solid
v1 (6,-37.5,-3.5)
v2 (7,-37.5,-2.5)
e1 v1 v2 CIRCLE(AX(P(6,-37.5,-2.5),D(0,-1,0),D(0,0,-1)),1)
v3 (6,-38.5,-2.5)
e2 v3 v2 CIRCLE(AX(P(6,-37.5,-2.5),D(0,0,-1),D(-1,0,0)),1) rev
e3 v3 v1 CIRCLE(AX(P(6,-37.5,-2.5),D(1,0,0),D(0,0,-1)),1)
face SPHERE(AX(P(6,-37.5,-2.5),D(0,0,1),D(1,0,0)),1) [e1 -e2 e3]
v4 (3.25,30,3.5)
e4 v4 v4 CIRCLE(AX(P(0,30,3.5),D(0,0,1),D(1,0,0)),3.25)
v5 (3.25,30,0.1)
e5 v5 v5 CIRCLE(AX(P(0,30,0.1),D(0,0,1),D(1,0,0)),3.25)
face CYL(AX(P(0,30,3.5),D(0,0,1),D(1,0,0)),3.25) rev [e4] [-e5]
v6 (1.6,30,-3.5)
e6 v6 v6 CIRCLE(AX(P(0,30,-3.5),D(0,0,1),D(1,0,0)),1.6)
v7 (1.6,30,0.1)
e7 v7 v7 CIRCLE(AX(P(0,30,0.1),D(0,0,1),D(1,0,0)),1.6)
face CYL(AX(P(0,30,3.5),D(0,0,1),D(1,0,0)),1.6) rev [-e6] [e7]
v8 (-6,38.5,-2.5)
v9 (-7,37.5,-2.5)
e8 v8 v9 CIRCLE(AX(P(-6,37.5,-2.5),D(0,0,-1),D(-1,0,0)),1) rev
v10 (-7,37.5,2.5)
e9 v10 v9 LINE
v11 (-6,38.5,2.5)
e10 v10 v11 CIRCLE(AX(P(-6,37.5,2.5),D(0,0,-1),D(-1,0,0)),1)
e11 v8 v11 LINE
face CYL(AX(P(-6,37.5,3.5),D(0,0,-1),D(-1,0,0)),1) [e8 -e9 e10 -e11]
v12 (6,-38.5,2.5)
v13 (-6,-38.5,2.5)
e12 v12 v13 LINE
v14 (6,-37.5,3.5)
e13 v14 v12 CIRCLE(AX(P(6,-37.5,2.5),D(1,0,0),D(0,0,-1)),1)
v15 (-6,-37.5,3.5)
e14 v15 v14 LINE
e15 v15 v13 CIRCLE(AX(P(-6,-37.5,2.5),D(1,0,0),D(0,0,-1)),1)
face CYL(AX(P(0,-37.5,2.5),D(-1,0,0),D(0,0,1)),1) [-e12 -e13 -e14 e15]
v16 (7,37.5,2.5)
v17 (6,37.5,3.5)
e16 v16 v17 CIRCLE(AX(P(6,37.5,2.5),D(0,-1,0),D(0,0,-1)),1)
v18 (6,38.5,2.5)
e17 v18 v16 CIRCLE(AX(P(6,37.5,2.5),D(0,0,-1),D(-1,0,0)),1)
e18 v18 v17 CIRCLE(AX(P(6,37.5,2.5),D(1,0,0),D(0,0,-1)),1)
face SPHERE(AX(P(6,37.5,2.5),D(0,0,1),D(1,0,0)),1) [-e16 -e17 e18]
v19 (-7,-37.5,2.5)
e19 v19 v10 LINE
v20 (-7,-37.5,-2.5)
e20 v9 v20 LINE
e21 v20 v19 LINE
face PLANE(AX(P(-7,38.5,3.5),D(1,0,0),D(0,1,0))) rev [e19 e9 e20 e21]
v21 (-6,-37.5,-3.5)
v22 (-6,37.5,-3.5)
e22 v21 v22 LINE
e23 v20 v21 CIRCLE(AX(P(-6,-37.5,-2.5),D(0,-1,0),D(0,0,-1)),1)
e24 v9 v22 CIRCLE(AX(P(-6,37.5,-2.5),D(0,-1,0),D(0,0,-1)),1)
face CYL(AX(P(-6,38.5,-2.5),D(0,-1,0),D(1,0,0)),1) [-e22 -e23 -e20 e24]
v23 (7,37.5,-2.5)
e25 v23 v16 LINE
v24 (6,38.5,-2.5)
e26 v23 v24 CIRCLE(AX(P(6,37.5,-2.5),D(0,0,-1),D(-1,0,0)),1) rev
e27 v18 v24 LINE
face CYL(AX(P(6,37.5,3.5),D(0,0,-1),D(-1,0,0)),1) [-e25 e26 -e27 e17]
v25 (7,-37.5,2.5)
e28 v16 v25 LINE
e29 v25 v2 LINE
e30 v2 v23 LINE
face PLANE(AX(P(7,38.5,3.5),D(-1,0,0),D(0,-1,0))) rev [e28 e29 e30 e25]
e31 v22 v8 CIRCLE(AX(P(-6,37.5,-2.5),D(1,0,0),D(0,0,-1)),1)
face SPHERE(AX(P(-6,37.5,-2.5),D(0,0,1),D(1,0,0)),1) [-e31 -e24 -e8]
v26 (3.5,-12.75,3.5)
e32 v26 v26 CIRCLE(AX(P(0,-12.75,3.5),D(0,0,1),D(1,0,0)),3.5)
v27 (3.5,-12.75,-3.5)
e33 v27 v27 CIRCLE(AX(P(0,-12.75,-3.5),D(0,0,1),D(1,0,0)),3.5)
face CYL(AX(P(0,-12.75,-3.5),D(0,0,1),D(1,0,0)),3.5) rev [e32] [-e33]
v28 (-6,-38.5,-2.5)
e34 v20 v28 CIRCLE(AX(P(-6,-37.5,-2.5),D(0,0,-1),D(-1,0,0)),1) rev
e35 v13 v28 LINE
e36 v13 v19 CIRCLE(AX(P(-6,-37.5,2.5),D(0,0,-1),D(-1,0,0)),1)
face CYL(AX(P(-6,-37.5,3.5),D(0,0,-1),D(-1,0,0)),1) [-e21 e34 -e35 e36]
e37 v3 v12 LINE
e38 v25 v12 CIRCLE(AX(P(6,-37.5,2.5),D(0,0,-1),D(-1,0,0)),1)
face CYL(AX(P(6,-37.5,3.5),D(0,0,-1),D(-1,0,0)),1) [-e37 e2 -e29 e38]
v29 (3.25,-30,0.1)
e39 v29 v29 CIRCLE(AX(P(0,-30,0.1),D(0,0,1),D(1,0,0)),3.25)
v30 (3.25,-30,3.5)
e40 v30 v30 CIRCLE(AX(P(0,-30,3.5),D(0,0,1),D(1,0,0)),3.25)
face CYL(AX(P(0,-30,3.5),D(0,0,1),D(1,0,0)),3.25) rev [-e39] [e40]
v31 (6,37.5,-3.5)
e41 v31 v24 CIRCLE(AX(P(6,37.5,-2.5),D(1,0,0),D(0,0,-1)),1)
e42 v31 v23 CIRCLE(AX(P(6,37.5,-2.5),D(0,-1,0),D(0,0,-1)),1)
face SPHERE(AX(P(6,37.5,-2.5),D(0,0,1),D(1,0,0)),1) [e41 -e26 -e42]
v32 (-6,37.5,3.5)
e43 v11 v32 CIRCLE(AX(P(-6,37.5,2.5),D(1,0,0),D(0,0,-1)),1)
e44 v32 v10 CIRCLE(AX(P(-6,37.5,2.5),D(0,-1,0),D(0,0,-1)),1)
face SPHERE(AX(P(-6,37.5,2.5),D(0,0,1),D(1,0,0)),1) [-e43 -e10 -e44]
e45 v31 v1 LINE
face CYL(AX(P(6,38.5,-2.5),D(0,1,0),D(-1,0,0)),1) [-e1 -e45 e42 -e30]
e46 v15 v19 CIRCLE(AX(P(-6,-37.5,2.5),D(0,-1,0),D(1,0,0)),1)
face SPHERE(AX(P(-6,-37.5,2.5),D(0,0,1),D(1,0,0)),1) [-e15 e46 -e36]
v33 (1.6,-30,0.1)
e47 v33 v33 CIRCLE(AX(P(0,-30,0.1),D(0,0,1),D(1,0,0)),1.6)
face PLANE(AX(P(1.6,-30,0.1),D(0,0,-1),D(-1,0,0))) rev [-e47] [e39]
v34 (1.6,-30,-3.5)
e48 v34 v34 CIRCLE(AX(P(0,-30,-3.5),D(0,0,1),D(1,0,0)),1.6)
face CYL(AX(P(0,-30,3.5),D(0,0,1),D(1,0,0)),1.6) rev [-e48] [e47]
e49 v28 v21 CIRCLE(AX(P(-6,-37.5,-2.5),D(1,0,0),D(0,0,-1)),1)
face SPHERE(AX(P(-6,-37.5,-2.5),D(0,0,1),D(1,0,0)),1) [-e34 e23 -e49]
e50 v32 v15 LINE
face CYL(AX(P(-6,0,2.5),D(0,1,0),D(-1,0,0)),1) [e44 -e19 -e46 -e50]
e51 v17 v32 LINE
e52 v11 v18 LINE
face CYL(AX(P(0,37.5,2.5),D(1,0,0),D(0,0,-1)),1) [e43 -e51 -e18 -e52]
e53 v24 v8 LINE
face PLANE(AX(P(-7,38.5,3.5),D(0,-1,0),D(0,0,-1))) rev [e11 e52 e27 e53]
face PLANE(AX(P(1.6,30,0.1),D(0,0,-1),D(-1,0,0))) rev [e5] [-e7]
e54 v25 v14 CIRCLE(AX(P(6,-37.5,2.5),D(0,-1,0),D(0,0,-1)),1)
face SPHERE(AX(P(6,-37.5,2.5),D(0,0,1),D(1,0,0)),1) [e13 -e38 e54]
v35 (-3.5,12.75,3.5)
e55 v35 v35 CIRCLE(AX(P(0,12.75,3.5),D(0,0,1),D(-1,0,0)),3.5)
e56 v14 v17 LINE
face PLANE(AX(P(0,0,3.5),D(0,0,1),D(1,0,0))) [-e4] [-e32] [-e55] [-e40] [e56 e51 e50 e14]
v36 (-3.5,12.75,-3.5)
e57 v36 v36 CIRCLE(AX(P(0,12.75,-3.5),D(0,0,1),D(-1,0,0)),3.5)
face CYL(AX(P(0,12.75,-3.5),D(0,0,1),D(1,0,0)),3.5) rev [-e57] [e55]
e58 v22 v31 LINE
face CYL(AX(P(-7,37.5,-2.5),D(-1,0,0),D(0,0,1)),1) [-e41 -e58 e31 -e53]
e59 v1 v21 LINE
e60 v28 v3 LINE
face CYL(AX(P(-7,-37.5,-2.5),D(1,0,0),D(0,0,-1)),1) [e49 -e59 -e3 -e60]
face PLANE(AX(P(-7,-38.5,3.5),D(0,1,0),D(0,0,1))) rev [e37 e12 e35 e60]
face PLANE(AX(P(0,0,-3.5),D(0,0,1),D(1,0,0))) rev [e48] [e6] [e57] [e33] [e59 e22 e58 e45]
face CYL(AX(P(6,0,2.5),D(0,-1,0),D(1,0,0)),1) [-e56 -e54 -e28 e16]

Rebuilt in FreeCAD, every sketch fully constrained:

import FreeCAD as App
import Part
import Sketcher
from FreeCAD import Vector


def edges_at(feature, points):
    """Names of the edges that pass closest to the given points."""
    edges = feature.Shape.Edges
    near = lambda p: min(range(len(edges)), key=lambda i: edges[i].distToShape(Part.Vertex(*p))[0])
    return sorted({f"Edge{near(p) + 1}" for p in points})

doc = App.newDocument("Part")
body = doc.addObject("PartDesign::Body", "Body")

# Sketch on XY plane
sketch1 = body.newObject("Sketcher::SketchObject", "Sketch")
sketch1.AttachmentSupport = (doc.getObject("XY_Plane"), [""])
sketch1.MapMode = "FlatFace"
sketch1.addGeometry([
    Part.LineSegment(Vector(-7, 38, 0), Vector(-7, -38, 0)),
    Part.LineSegment(Vector(-7, -38, 0), Vector(7, -38, 0)),
    Part.LineSegment(Vector(7, -38, 0), Vector(7, 38, 0)),
    Part.LineSegment(Vector(7, 38, 0), Vector(-7, 38, 0)),
], False)
sketch1.addConstraint([
    Sketcher.Constraint("Coincident", 0, 2, 1, 1),
    Sketcher.Constraint("Coincident", 1, 2, 2, 1),
    Sketcher.Constraint("Coincident", 2, 2, 3, 1),
    Sketcher.Constraint("Coincident", 3, 2, 0, 1),
    Sketcher.Constraint("Vertical", 0),
    Sketcher.Constraint("Horizontal", 1),
    Sketcher.Constraint("Vertical", 2),
    Sketcher.Constraint("Horizontal", 3),
    Sketcher.Constraint("Symmetric", 0, 2, 2, 2, -1, 1),
    Sketcher.Constraint("DistanceX", 1, 1, 1, 2, 14.0),
    Sketcher.Constraint("DistanceY", 0, 2, 0, 1, 77.0),
])
pad1 = body.newObject("PartDesign::Pad", "Pad")
pad1.Profile = sketch1
pad1.Length = 7
pad1.Midplane = True

# Sketch on XY plane
sketch2 = body.newObject("Sketcher::SketchObject", "Sketch001")
sketch2.AttachmentSupport = (doc.getObject("XY_Plane"), [""])
sketch2.MapMode = "FlatFace"
sketch2.AttachmentOffset = App.Placement(Vector(0, 0, 3.5), App.Rotation())
sketch2.addGeometry([
    Part.Circle(Vector(0, -30, 0), Vector(0, 0, 1), 1.6),
    Part.Circle(Vector(0, 30, 0), Vector(0, 0, 1), 1.6),
], False)
sketch2.addConstraint([
    Sketcher.Constraint("Equal", 0, 1),
    Sketcher.Constraint("Symmetric", 0, 3, 1, 3, -1, 1),
    Sketcher.Constraint("PointOnObject", 0, 3, -2),
    Sketcher.Constraint("Diameter", 0, 3.2),
    Sketcher.Constraint("DistanceY", 0, 3, -1, 1, 30.0),
])
doc.recompute()
hole = body.newObject("PartDesign::Hole", "Hole")
hole.Profile = sketch2
hole.ThreadType = "None"
hole.Diameter = 3.2
hole.DepthType = "ThroughAll"
hole.HoleCutType = "Counterbore"
hole.HoleCutDiameter = 6.5
hole.HoleCutDepth = 3.4

# Sketch on XY plane
sketch3 = body.newObject("Sketcher::SketchObject", "Sketch002")
sketch3.AttachmentSupport = (doc.getObject("XY_Plane"), [""])
sketch3.MapMode = "FlatFace"
sketch3.AttachmentOffset = App.Placement(Vector(0, 0, 3.5), App.Rotation())
sketch3.addGeometry([
    Part.Circle(Vector(0, -12.8, 0), Vector(0, 0, 1), 3.5),
    Part.Circle(Vector(0, 12.8, 0), Vector(0, 0, 1), 3.5),
], False)
sketch3.addConstraint([
    Sketcher.Constraint("Equal", 0, 1),
    Sketcher.Constraint("Symmetric", 0, 3, 1, 3, -1, 1),
    Sketcher.Constraint("PointOnObject", 0, 3, -2),
    Sketcher.Constraint("Diameter", 0, 7.0),
    Sketcher.Constraint("DistanceY", 0, 3, 1, 3, 25.5),
])
pocket1 = body.newObject("PartDesign::Pocket", "Pocket")
pocket1.Profile = sketch3
pocket1.Type = "ThroughAll"
doc.recompute()

fillet = body.newObject("PartDesign::Fillet", "Fillet")
fillet.Base = (pocket1, edges_at(pocket1, [
    (-7, 38.5, 0),
    (7, 38.5, 0),
    (7, -38.5, 0),
    (-7, -38.5, 0),
]))
fillet.Radius = 1
doc.recompute()

fillet2 = body.newObject("PartDesign::Fillet", "Fillet001")
fillet2.Base = (fillet, edges_at(fillet, [
    (-7, 0, -3.5),
    (-7, 0, 3.5),
    (0, 38.5, -3.5),
    (7, 0, -3.5),
    (0, -38.5, -3.5),
    (6.707, 38.207, -3.5),
    (6.707, -38.207, -3.5),
    (-6.707, -38.207, -3.5),
    (-6.707, 38.207, -3.5),
    (0, 38.5, 3.5),
    (0, -38.5, 3.5),
    (7, 0, 3.5),
    (6.707, 38.207, 3.5),
    (6.707, -38.207, 3.5),
    (-6.707, -38.207, 3.5),
    (-6.707, 38.207, 3.5),
]))
fillet2.Radius = 1

doc.recompute()
